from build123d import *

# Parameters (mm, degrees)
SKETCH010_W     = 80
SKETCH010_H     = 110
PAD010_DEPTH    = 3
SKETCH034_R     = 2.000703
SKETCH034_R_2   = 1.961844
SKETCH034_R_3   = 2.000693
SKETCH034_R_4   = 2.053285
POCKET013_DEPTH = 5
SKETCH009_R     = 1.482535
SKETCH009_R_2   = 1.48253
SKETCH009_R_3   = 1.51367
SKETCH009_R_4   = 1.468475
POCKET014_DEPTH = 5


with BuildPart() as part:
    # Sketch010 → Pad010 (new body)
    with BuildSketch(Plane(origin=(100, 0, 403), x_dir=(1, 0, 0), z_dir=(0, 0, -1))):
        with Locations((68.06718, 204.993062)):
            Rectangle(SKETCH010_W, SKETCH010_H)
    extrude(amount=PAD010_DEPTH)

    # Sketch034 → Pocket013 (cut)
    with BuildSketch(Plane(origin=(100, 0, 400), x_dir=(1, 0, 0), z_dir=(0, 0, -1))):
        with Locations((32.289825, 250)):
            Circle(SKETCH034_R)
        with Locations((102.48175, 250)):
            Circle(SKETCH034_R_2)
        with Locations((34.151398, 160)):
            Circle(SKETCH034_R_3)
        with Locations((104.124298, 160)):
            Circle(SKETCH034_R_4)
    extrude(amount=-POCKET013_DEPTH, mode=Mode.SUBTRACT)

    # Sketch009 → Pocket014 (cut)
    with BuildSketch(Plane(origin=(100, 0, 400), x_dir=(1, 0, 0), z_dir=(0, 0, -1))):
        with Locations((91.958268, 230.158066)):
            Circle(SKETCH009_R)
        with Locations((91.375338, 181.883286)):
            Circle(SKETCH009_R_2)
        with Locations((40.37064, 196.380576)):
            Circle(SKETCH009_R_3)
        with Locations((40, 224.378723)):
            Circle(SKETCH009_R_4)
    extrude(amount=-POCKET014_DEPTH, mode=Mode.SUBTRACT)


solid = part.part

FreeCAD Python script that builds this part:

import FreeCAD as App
import Part
import Sketcher
from FreeCAD import Vector
Q = App.Units.Quantity


def add_polygon(sketch, points):
    """Adds a closed chain of lines whose ends are joined by coincident constraints."""
    first, n = sketch.GeometryCount, len(points)
    for a, b in zip(points, points[1:] + points[:1]):
        sketch.addGeometry(Part.LineSegment(App.Vector(*a, 0), App.Vector(*b, 0)), False)
    for i in range(n):
        sketch.addConstraint(Sketcher.Constraint("Coincident", first + i, 2, first + (i + 1) % n, 1))

doc = App.newDocument("Part")
body = doc.addObject("PartDesign::Body", "Body")

sketch1 = doc.addObject("Sketcher::SketchObject", "Sketch")
body.addObject(sketch1)
sketch1.AttachmentSupport = (doc.XY_Plane, [""])
sketch1.MapMode = "FlatFace"
sketch1.AttachmentOffset = App.Placement(Vector(0, 0, 403), App.Rotation())
add_polygon(sketch1, [(128.06718, -259.993062), (128.06718, -149.993062), (208.06718, -149.993062), (208.06718, -259.993062)])
sketch1.addConstraint(Sketcher.Constraint("Vertical", 0))
sketch1.addConstraint(Sketcher.Constraint("Horizontal", 1))
sketch1.addConstraint(Sketcher.Constraint("Vertical", 2))
sketch1.addConstraint(Sketcher.Constraint("Horizontal", 3))
sketch1.addConstraint(Sketcher.Constraint("DistanceX", 1, 1, 1, 2, Q("80 mm")))
sketch1.addConstraint(Sketcher.Constraint("DistanceY", 0, 1, 0, 2, Q("110 mm")))
sketch1.addConstraint(Sketcher.Constraint("DistanceX", -1, 1, 0, 2, Q("128.06718 mm")))
sketch1.addConstraint(Sketcher.Constraint("DistanceY", 0, 2, -1, 1, Q("149.993062 mm")))
pad1 = doc.addObject("PartDesign::Pad", "Pad")
body.addObject(pad1)
pad1.Profile = sketch1
pad1.Length = 3
pad1.Reversed = True

sketch2 = doc.addObject("Sketcher::SketchObject", "Sketch001")
body.addObject(sketch2)
sketch2.AttachmentSupport = (doc.XY_Plane, [""])
sketch2.MapMode = "FlatFace"
sketch2.AttachmentOffset = App.Placement(Vector(0, 0, 400), App.Rotation())
sketch2.addGeometry(Part.Circle(Vector(132.289825, -250, 0), Vector(0, 0, 1), 2.000703), False)
sketch2.addGeometry(Part.Circle(Vector(202.48175, -250, 0), Vector(0, 0, 1), 1.961844), False)
sketch2.addGeometry(Part.Circle(Vector(134.151398, -160, 0), Vector(0, 0, 1), 2.000693), False)
sketch2.addGeometry(Part.Circle(Vector(204.124298, -160, 0), Vector(0, 0, 1), 2.053285), False)
sketch2.addConstraint(Sketcher.Constraint("Horizontal", 0, 3, 1, 3))
sketch2.addConstraint(Sketcher.Constraint("Horizontal", 2, 3, 3, 3))
sketch2.addConstraint(Sketcher.Constraint("DistanceY", 0, 3, -1, 1, Q("250 mm")))
sketch2.addConstraint(Sketcher.Constraint("DistanceY", 2, 3, -1, 1, Q("160 mm")))
sketch2.addConstraint(Sketcher.Constraint("Diameter", 3, Q("4.10657 mm")))
sketch2.addConstraint(Sketcher.Constraint("Diameter", 0, Q("4.001406 mm")))
sketch2.addConstraint(Sketcher.Constraint("Diameter", 1, Q("3.923688 mm")))
sketch2.addConstraint(Sketcher.Constraint("Diameter", 2, Q("4.001386 mm")))
sketch2.addConstraint(Sketcher.Constraint("DistanceX", -1, 1, 2, 3, Q("134.151398 mm")))
sketch2.addConstraint(Sketcher.Constraint("DistanceX", -1, 1, 3, 3, Q("204.124298 mm")))
sketch2.addConstraint(Sketcher.Constraint("DistanceX", -1, 1, 1, 3, Q("202.48175 mm")))
sketch2.addConstraint(Sketcher.Constraint("DistanceX", -1, 1, 0, 3, Q("132.289825 mm")))
pocket1 = doc.addObject("PartDesign::Pocket", "Pocket")
body.addObject(pocket1)
pocket1.Profile = sketch2
pocket1.Length = 5
pocket1.Reversed = True

sketch3 = doc.addObject("Sketcher::SketchObject", "Sketch002")
body.addObject(sketch3)
sketch3.AttachmentSupport = (doc.XY_Plane, [""])
sketch3.MapMode = "FlatFace"
sketch3.AttachmentOffset = App.Placement(Vector(0, 0, 400), App.Rotation())
sketch3.addGeometry(Part.Circle(Vector(191.958268, -230.158066, 0), Vector(0, 0, 1), 1.482535), False)
sketch3.addGeometry(Part.Circle(Vector(191.375338, -181.883286, 0), Vector(0, 0, 1), 1.48253), False)
sketch3.addGeometry(Part.Circle(Vector(140.37064, -196.380576, 0), Vector(0, 0, 1), 1.51367), False)
sketch3.addGeometry(Part.Circle(Vector(140, -224.378723, 0), Vector(0, 0, 1), 1.468475), False)
sketch3.addConstraint(Sketcher.Constraint("DistanceX", -1, 1, 3, 3, Q("140 mm")))
sketch3.addConstraint(Sketcher.Constraint("Diameter", 0, Q("2.96507 mm")))
sketch3.addConstraint(Sketcher.Constraint("Diameter", 1, Q("2.96506 mm")))
sketch3.addConstraint(Sketcher.Constraint("Diameter", 2, Q("3.02734 mm")))
sketch3.addConstraint(Sketcher.Constraint("Diameter", 3, Q("2.93695 mm")))
sketch3.addConstraint(Sketcher.Constraint("DistanceX", -1, 1, 0, 3, Q("191.958268 mm")))
sketch3.addConstraint(Sketcher.Constraint("DistanceX", -1, 1, 1, 3, Q("191.375338 mm")))
sketch3.addConstraint(Sketcher.Constraint("DistanceX", -1, 1, 2, 3, Q("140.37064 mm")))
sketch3.addConstraint(Sketcher.Constraint("DistanceY", 0, 3, 1, 3, Q("48.27478 mm")))
sketch3.addConstraint(Sketcher.Constraint("DistanceY", 2, 3, 1, 3, Q("14.49729 mm")))
sketch3.addConstraint(Sketcher.Constraint("DistanceY", 0, 3, -1, 1, Q("230.158066 mm")))
sketch3.addConstraint(Sketcher.Constraint("DistanceY", 3, 3, -1, 1, Q("224.378723 mm")))
pocket2 = doc.addObject("PartDesign::Pocket", "Pocket001")
body.addObject(pocket2)
pocket2.Profile = sketch3
pocket2.Length = 5
pocket2.Reversed = True

doc.recompute()
